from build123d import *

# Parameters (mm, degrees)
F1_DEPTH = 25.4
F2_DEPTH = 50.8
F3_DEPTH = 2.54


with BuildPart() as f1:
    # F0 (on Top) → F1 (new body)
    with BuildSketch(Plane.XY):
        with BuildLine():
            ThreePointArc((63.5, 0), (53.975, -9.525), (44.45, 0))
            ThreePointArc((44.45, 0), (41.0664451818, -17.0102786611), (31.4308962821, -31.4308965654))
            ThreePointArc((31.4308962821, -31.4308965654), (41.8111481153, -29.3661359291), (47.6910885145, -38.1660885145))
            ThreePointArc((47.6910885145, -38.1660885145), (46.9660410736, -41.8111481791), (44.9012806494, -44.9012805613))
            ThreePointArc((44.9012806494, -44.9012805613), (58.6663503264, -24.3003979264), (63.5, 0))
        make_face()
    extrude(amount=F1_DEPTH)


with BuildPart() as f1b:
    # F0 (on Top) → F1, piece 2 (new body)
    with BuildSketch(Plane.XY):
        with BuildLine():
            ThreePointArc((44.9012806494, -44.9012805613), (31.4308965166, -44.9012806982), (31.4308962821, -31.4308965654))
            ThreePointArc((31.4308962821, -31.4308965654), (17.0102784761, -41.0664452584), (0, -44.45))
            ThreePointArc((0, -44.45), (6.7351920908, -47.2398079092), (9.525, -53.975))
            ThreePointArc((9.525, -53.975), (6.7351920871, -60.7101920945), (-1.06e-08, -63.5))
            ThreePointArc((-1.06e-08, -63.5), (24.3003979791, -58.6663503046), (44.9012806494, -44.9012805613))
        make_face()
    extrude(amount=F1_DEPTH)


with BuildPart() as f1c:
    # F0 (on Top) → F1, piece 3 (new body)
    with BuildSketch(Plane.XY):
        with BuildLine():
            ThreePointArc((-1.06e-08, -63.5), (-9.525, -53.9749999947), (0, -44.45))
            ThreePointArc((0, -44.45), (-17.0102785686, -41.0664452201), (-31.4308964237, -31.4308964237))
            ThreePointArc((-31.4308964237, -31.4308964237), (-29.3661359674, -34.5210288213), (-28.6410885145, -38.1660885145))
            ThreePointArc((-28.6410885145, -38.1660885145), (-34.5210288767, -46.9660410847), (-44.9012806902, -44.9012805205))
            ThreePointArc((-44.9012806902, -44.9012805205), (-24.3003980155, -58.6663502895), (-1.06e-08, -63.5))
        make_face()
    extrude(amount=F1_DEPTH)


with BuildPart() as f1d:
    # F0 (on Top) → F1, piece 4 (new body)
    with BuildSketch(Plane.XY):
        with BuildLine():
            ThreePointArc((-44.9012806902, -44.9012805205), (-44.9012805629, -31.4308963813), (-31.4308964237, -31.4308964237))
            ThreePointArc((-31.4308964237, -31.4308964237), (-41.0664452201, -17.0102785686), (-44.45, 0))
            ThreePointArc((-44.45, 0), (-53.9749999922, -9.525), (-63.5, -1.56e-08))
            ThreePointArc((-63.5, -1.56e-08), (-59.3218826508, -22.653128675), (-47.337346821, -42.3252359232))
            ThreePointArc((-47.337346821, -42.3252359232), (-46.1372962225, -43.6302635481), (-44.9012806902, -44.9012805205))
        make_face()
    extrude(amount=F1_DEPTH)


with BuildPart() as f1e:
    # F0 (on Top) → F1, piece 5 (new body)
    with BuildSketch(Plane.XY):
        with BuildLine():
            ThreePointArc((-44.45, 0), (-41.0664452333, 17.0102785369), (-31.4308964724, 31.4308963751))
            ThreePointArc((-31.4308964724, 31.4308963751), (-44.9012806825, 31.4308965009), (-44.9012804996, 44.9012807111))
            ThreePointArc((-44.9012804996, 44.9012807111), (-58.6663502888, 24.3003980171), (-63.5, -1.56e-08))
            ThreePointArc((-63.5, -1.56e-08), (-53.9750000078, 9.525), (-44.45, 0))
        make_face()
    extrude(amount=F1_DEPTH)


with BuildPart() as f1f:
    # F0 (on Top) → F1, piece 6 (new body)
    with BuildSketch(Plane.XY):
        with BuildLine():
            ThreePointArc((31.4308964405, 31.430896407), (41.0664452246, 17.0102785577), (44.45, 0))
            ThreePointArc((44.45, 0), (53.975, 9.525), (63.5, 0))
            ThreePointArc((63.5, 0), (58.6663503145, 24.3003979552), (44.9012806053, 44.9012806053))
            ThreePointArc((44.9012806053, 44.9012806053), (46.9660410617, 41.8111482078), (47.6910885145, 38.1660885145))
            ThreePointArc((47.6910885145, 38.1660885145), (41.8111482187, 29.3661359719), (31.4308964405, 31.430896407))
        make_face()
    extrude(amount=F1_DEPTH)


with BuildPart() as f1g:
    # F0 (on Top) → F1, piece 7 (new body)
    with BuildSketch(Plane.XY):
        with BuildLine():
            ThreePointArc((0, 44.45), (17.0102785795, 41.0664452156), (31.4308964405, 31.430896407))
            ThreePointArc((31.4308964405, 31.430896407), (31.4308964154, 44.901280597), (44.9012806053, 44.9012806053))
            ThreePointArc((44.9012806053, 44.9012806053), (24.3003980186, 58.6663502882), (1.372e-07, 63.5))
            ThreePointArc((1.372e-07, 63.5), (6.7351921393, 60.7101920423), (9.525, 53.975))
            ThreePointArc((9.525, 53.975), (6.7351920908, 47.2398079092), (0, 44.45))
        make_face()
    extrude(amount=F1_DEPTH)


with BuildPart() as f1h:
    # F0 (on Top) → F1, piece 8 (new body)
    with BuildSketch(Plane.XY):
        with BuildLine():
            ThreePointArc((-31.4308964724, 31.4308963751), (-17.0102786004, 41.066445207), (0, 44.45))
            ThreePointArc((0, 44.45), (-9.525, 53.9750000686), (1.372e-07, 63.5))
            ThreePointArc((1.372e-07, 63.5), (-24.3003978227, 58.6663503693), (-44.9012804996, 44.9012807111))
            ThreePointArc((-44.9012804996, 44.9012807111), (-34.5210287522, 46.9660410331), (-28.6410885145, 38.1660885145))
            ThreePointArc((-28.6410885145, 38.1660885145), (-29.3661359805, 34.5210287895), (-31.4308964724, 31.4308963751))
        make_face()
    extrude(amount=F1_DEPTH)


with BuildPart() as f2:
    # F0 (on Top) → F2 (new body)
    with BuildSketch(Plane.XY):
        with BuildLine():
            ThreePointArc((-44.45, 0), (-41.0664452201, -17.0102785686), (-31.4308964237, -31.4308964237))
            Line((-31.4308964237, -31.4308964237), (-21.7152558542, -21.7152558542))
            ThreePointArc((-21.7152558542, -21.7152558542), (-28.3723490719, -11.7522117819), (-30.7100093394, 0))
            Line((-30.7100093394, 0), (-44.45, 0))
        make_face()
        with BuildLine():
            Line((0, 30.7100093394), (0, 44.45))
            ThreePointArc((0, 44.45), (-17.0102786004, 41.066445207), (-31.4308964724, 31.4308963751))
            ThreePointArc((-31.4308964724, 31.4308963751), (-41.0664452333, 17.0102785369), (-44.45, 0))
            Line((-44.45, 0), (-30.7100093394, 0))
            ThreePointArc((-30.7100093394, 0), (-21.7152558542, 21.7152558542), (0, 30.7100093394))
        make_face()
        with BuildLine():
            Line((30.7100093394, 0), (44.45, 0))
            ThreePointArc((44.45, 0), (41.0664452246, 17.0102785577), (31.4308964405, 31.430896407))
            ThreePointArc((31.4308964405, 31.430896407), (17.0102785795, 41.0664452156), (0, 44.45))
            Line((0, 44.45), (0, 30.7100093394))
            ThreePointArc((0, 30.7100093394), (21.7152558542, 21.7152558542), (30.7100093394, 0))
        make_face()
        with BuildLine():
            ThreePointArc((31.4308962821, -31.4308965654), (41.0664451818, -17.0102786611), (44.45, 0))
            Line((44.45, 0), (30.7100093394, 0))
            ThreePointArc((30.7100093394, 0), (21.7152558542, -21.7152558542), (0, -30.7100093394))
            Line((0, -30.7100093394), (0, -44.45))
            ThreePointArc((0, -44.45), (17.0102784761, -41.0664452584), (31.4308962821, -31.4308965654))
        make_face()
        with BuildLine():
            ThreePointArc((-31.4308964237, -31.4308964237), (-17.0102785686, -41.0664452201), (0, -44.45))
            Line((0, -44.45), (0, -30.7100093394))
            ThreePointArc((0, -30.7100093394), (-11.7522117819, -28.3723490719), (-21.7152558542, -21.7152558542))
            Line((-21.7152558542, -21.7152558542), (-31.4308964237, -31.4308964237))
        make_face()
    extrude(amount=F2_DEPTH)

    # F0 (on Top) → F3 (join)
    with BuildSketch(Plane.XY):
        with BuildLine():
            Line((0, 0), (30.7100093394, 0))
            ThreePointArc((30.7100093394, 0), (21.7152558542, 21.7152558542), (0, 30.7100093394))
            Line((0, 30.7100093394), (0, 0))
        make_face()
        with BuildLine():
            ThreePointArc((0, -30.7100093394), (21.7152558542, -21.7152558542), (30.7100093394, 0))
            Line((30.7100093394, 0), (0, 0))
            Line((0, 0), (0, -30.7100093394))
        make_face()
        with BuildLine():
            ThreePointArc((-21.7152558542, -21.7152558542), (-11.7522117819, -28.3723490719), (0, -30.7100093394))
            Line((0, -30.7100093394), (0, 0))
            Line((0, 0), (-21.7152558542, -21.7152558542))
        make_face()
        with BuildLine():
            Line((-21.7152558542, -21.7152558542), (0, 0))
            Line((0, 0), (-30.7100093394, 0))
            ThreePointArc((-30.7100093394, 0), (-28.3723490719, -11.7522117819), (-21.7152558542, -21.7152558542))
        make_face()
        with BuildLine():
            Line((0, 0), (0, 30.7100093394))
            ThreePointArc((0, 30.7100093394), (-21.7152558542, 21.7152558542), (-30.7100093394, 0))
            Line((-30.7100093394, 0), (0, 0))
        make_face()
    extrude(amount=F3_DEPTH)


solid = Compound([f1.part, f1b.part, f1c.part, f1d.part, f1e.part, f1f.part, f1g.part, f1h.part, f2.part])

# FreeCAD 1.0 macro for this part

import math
import FreeCAD as App
import Part
import Sketcher

V = App.Vector
Q = App.Units.Quantity

doc = App.newDocument("Part")
body = doc.addObject("PartDesign::Body", "Body")

sketch1 = body.newObject("Sketcher::SketchObject", "Sketch")
sketch1.AttachmentSupport = (doc.getObject("XY_Plane"), [""])
sketch1.MapMode = "FlatFace"
sketch1.addGeometry([
    Part.ArcOfCircle(Part.Circle(V(54, 0, 0), V(0, 0, 1), 10), math.radians(180), math.radians(360)),
    Part.ArcOfCircle(Part.Circle(V(0, 0, 0), V(0, 0, 1), 44), math.radians(-45), math.radians(0)),
    Part.ArcOfCircle(Part.Circle(V(38, -38, 0), V(0, 0, 1), 10), math.radians(0), math.radians(135)),
    Part.ArcOfCircle(Part.Circle(V(38, -38, 0), V(0, 0, 1), 10), math.radians(-45), math.radians(0)),
    Part.ArcOfCircle(Part.Circle(V(0, 0, 0), V(0, 0, 1), 64), math.radians(-45), math.radians(0)),
], False)
sketch1.addConstraint([
    Sketcher.Constraint("Tangent", 0, 1, 1, 2),
    Sketcher.Constraint("Tangent", 1, 1, 2, 2),
    Sketcher.Constraint("Tangent", 2, 1, 3, 2),
    Sketcher.Constraint("Tangent", 3, 1, 4, 1),
    Sketcher.Constraint("Tangent", 4, 2, 0, 2),
    Sketcher.Constraint("Coincident", 1, 3, -1, 1),
    Sketcher.Constraint("Coincident", 4, 3, -1, 1),
    Sketcher.Constraint("Equal", 0, 2),
    Sketcher.Constraint("PointOnObject", 0, 3, -1),
    Sketcher.Constraint("Horizontal", 3, 3, 2, 1),
    Sketcher.Constraint("Radius", 4, Q("2.5 in")),
    Sketcher.Constraint("Radius", 1, Q("1.75 in")),
    Sketcher.Constraint("DistanceX", -1, 1, 2, 3, 38.166089),
])
pad1 = body.newObject("PartDesign::Pad", "Pad")
pad1.Profile = sketch1
pad1.Length = Q("1 in")
body2 = doc.addObject("PartDesign::Body", "Body001")

sketch2 = body2.newObject("Sketcher::SketchObject", "Sketch001")
sketch2.AttachmentSupport = (doc.getObject("XY_Plane001"), [""])
sketch2.MapMode = "FlatFace"
sketch2.addGeometry([
    Part.ArcOfCircle(Part.Circle(V(38, -38, 0), V(0, 0, 1), 10), math.radians(135), math.radians(315)),
    Part.ArcOfCircle(Part.Circle(V(0, 0, 0), V(0, 0, 1), 44), math.radians(-90), math.radians(-45)),
    Part.ArcOfCircle(Part.Circle(V(0, -54, 0), V(0, 0, 1), 10), math.radians(0), math.radians(90)),
    Part.ArcOfCircle(Part.Circle(V(0, -54, 0), V(0, 0, 1), 10), math.radians(-90), math.radians(0)),
    Part.ArcOfCircle(Part.Circle(V(0, 0, 0), V(0, 0, 1), 64), math.radians(-90), math.radians(-45)),
], False)
sketch2.addConstraint([
    Sketcher.Constraint("Tangent", 0, 1, 1, 2),
    Sketcher.Constraint("Tangent", 1, 1, 2, 2),
    Sketcher.Constraint("Tangent", 2, 1, 3, 2),
    Sketcher.Constraint("Tangent", 3, 1, 4, 1),
    Sketcher.Constraint("Tangent", 4, 2, 0, 2),
    Sketcher.Constraint("Coincident", 1, 3, -1, 1),
    Sketcher.Constraint("Coincident", 4, 3, -1, 1),
    Sketcher.Constraint("Equal", 0, 2),
    Sketcher.Constraint("PointOnObject", 2, 3, -2),
    Sketcher.Constraint("Horizontal", 3, 3, 2, 1),
    Sketcher.Constraint("Radius", 4, Q("2.5 in")),
    Sketcher.Constraint("Radius", 1, Q("1.75 in")),
    Sketcher.Constraint("DistanceX", -1, 1, 0, 3, 38.166089),
])
pad2 = body2.newObject("PartDesign::Pad", "Pad001")
pad2.Profile = sketch2
pad2.Length = Q("1 in")
body3 = doc.addObject("PartDesign::Body", "Body002")

sketch3 = body3.newObject("Sketcher::SketchObject", "Sketch002")
sketch3.AttachmentSupport = (doc.getObject("XY_Plane002"), [""])
sketch3.MapMode = "FlatFace"
sketch3.addGeometry([
    Part.ArcOfCircle(Part.Circle(V(0, -54, 0), V(0, 0, 1), 10), math.radians(90), math.radians(270)),
    Part.ArcOfCircle(Part.Circle(V(0, 0, 0), V(0, 0, 1), 44), math.radians(-135), math.radians(-90)),
    Part.ArcOfCircle(Part.Circle(V(-38, -38, 0), V(0, 0, 1), 10), math.radians(0), math.radians(45)),
    Part.ArcOfCircle(Part.Circle(V(-38, -38, 0), V(0, 0, 1), 10), math.radians(-135), math.radians(0)),
    Part.ArcOfCircle(Part.Circle(V(0, 0, 0), V(0, 0, 1), 64), math.radians(-135), math.radians(-90)),
], False)
sketch3.addConstraint([
    Sketcher.Constraint("Tangent", 0, 1, 1, 2),
    Sketcher.Constraint("Tangent", 1, 1, 2, 2),
    Sketcher.Constraint("Tangent", 2, 1, 3, 2),
    Sketcher.Constraint("Tangent", 3, 1, 4, 1),
    Sketcher.Constraint("Tangent", 4, 2, 0, 2),
    Sketcher.Constraint("Coincident", 1, 3, -1, 1),
    Sketcher.Constraint("Coincident", 4, 3, -1, 1),
    Sketcher.Constraint("Equal", 0, 2),
    Sketcher.Constraint("PointOnObject", 0, 3, -2),
    Sketcher.Constraint("Horizontal", 3, 3, 2, 1),
    Sketcher.Constraint("Radius", 4, Q("2.5 in")),
    Sketcher.Constraint("Radius", 1, Q("1.75 in")),
    Sketcher.Constraint("DistanceX", 2, 3, -1, 1, 38.166089),
])
pad3 = body3.newObject("PartDesign::Pad", "Pad002")
pad3.Profile = sketch3
pad3.Length = Q("1 in")
body4 = doc.addObject("PartDesign::Body", "Body003")

sketch4 = body4.newObject("Sketcher::SketchObject", "Sketch003")
sketch4.AttachmentSupport = (doc.getObject("XY_Plane003"), [""])
sketch4.MapMode = "FlatFace"
sketch4.addGeometry([
    Part.ArcOfCircle(Part.Circle(V(-38.2, -38.2, 0), V(0, 0, 1), 9.5), math.radians(45), math.radians(225)),
    Part.ArcOfCircle(Part.Circle(V(0, 0, 0), V(0, 0, 1), 44.5), math.radians(180), math.radians(225)),
    Part.ArcOfCircle(Part.Circle(V(-54, 0, 0), V(0, 0, 1), 9.5), math.radians(-180), math.radians(0)),
    Part.ArcOfCircle(Part.Circle(V(0, 0, 0), V(0, 0, 1), 63.5), math.radians(-180), math.radians(-138)),
    Part.ArcOfCircle(Part.Circle(V(0, 0, 0), V(0, 0, 1), 63.5), math.radians(-138.2), math.radians(-135)),
], False)
sketch4.addConstraint([
    Sketcher.Constraint("Tangent", 0, 1, 1, 2),
    Sketcher.Constraint("Tangent", 1, 1, 2, 2),
    Sketcher.Constraint("Tangent", 2, 1, 3, 1),
    Sketcher.Constraint("Tangent", 3, 2, 4, 1),
    Sketcher.Constraint("Tangent", 4, 2, 0, 2),
    Sketcher.Constraint("Coincident", 1, 3, -1, 1),
    Sketcher.Constraint("Coincident", 3, 3, -1, 1),
    Sketcher.Constraint("Equal", 3, 4),
    Sketcher.Constraint("PointOnObject", 2, 3, -1),
    Sketcher.Constraint("Radius", 3, Q("2.5 in")),
    Sketcher.Constraint("Radius", 1, Q("1.75 in")),
    Sketcher.Constraint("DistanceX", 0, 3, -1, 1, 38.166089),
    Sketcher.Constraint("DistanceX", 3, 2, 0, 3, 9.171258),
])
pad4 = body4.newObject("PartDesign::Pad", "Pad003")
pad4.Profile = sketch4
pad4.Length = Q("1 in")
body5 = doc.addObject("PartDesign::Body", "Body004")

sketch5 = body5.newObject("Sketcher::SketchObject", "Sketch004")
sketch5.AttachmentSupport = (doc.getObject("XY_Plane004"), [""])
sketch5.MapMode = "FlatFace"
sketch5.addGeometry([
    Part.ArcOfCircle(Part.Circle(V(0, 0, 0), V(0, 0, 1), 44), math.radians(135), math.radians(180)),
    Part.ArcOfCircle(Part.Circle(V(-38, 38, 0), V(0, 0, 1), 10), math.radians(135), math.radians(315)),
    Part.ArcOfCircle(Part.Circle(V(0, 0, 0), V(0, 0, 1), 64), math.radians(135), math.radians(180)),
    Part.ArcOfCircle(Part.Circle(V(-54, 0, 0), V(0, 0, 1), 10), math.radians(0), math.radians(180)),
], False)
sketch5.addConstraint([
    Sketcher.Constraint("Tangent", 0, 1, 1, 2),
    Sketcher.Constraint("Tangent", 1, 1, 2, 1),
    Sketcher.Constraint("Tangent", 2, 2, 3, 2),
    Sketcher.Constraint("Tangent", 3, 1, 0, 2),
    Sketcher.Constraint("Coincident", 0, 3, -1, 1),
    Sketcher.Constraint("Coincident", 2, 3, -1, 1),
    Sketcher.Constraint("PointOnObject", 3, 3, -1),
    Sketcher.Constraint("Radius", 2, Q("2.5 in")),
    Sketcher.Constraint("Radius", 0, Q("1.75 in")),
    Sketcher.Constraint("DistanceX", 1, 3, -1, 1, 38.166089),
])
pad5 = body5.newObject("PartDesign::Pad", "Pad004")
pad5.Profile = sketch5
pad5.Length = Q("1 in")
body6 = doc.addObject("PartDesign::Body", "Body005")

sketch6 = body6.newObject("Sketcher::SketchObject", "Sketch005")
sketch6.AttachmentSupport = (doc.getObject("XY_Plane005"), [""])
sketch6.MapMode = "FlatFace"
sketch6.addGeometry([
    Part.ArcOfCircle(Part.Circle(V(0, 0, 0), V(0, 0, 1), 44), math.radians(0), math.radians(45)),
    Part.ArcOfCircle(Part.Circle(V(54, 0, 0), V(0, 0, 1), 10), math.radians(0), math.radians(180)),
    Part.ArcOfCircle(Part.Circle(V(0, 0, 0), V(0, 0, 1), 63), math.radians(0), math.radians(45)),
    Part.ArcOfCircle(Part.Circle(V(38, 38, 0), V(0, 0, 1), 10), math.radians(0), math.radians(45)),
    Part.ArcOfCircle(Part.Circle(V(38, 38, 0), V(0, 0, 1), 10), math.radians(-135), math.radians(0)),
], False)
sketch6.addConstraint([
    Sketcher.Constraint("Tangent", 0, 1, 1, 2),
    Sketcher.Constraint("Tangent", 1, 1, 2, 1),
    Sketcher.Constraint("Tangent", 2, 2, 3, 2),
    Sketcher.Constraint("Tangent", 3, 1, 4, 2),
    Sketcher.Constraint("Tangent", 4, 1, 0, 2),
    Sketcher.Constraint("Coincident", 0, 3, -1, 1),
    Sketcher.Constraint("Coincident", 2, 3, -1, 1),
    Sketcher.Constraint("Equal", 1, 3),
    Sketcher.Constraint("PointOnObject", 1, 3, -1),
    Sketcher.Constraint("Horizontal", 4, 3, 3, 1),
    Sketcher.Constraint("Radius", 2, Q("2.5 in")),
    Sketcher.Constraint("Radius", 0, Q("1.75 in")),
    Sketcher.Constraint("DistanceX", -1, 1, 3, 3, 38.166089),
])
pad6 = body6.newObject("PartDesign::Pad", "Pad005")
pad6.Profile = sketch6
pad6.Length = Q("1 in")
body7 = doc.addObject("PartDesign::Body", "Body006")

sketch7 = body7.newObject("Sketcher::SketchObject", "Sketch006")
sketch7.AttachmentSupport = (doc.getObject("XY_Plane006"), [""])
sketch7.MapMode = "FlatFace"
sketch7.addGeometry([
    Part.ArcOfCircle(Part.Circle(V(0, 0, 0), V(0, 0, 1), 44), math.radians(45), math.radians(90)),
    Part.ArcOfCircle(Part.Circle(V(38, 38, 0), V(0, 0, 1), 10), math.radians(45), math.radians(225)),
    Part.ArcOfCircle(Part.Circle(V(0, 0, 0), V(0, 0, 1), 64), math.radians(45), math.radians(90)),
    Part.ArcOfCircle(Part.Circle(V(0, 54, 0), V(0, 0, 1), 10), math.radians(0), math.radians(90)),
    Part.ArcOfCircle(Part.Circle(V(0, 54, 0), V(0, 0, 1), 10), math.radians(-90), math.radians(0)),
], False)
sketch7.addConstraint([
    Sketcher.Constraint("Tangent", 0, 1, 1, 2),
    Sketcher.Constraint("Tangent", 1, 1, 2, 1),
    Sketcher.Constraint("Tangent", 2, 2, 3, 2),
    Sketcher.Constraint("Tangent", 3, 1, 4, 2),
    Sketcher.Constraint("Tangent", 4, 1, 0, 2),
    Sketcher.Constraint("Coincident", 0, 3, -1, 1),
    Sketcher.Constraint("Coincident", 2, 3, -1, 1),
    Sketcher.Constraint("Equal", 1, 3),
    Sketcher.Constraint("PointOnObject", 3, 3, -2),
    Sketcher.Constraint("Horizontal", 4, 3, 3, 1),
    Sketcher.Constraint("Radius", 2, Q("2.5 in")),
    Sketcher.Constraint("Radius", 0, Q("1.75 in")),
    Sketcher.Constraint("DistanceX", -1, 1, 1, 3, 38.166089),
])
pad7 = body7.newObject("PartDesign::Pad", "Pad006")
pad7.Profile = sketch7
pad7.Length = Q("1 in")
body8 = doc.addObject("PartDesign::Body", "Body007")

sketch8 = body8.newObject("Sketcher::SketchObject", "Sketch007")
sketch8.AttachmentSupport = (doc.getObject("XY_Plane007"), [""])
sketch8.MapMode = "FlatFace"
sketch8.addGeometry([
    Part.ArcOfCircle(Part.Circle(V(0, 0, 0), V(0, 0, 1), 44), math.radians(90), math.radians(135)),
    Part.ArcOfCircle(Part.Circle(V(0, 54, 0), V(0, 0, 1), 10), math.radians(90), math.radians(270)),
    Part.ArcOfCircle(Part.Circle(V(0, 0, 0), V(0, 0, 1), 64), math.radians(90), math.radians(135)),
    Part.ArcOfCircle(Part.Circle(V(-38, 38, 0), V(0, 0, 1), 10), math.radians(0), math.radians(135)),
    Part.ArcOfCircle(Part.Circle(V(-38, 38, 0), V(0, 0, 1), 10), math.radians(-45), math.radians(0)),
], False)
sketch8.addConstraint([
    Sketcher.Constraint("Tangent", 0, 1, 1, 2),
    Sketcher.Constraint("Tangent", 1, 1, 2, 1),
    Sketcher.Constraint("Tangent", 2, 2, 3, 2),
    Sketcher.Constraint("Tangent", 3, 1, 4, 2),
    Sketcher.Constraint("Tangent", 4, 1, 0, 2),
    Sketcher.Constraint("Coincident", 0, 3, -1, 1),
    Sketcher.Constraint("Coincident", 2, 3, -1, 1),
    Sketcher.Constraint("Equal", 1, 3),
    Sketcher.Constraint("PointOnObject", 1, 3, -2),
    Sketcher.Constraint("Horizontal", 4, 3, 3, 1),
    Sketcher.Constraint("Radius", 2, Q("2.5 in")),
    Sketcher.Constraint("Radius", 0, Q("1.75 in")),
    Sketcher.Constraint("DistanceX", 3, 3, -1, 1, 38.166089),
])
pad8 = body8.newObject("PartDesign::Pad", "Pad007")
pad8.Profile = sketch8
pad8.Length = Q("1 in")
body9 = doc.addObject("PartDesign::Body", "Body008")

sketch9 = body9.newObject("Sketcher::SketchObject", "Sketch008")
sketch9.AttachmentSupport = (doc.getObject("XY_Plane008"), [""])
sketch9.MapMode = "FlatFace"
sketch9.addGeometry([
    Part.ArcOfCircle(Part.Circle(V(0, 0, 0), V(0, 0, 1), 44), math.radians(-90), math.radians(-45)),
    Part.ArcOfCircle(Part.Circle(V(0, 0, 0), V(0, 0, 1), 44), math.radians(-45), math.radians(0)),
    Part.ArcOfCircle(Part.Circle(V(0, 0, 0), V(0, 0, 1), 44), math.radians(0), math.radians(45)),
    Part.ArcOfCircle(Part.Circle(V(0, 0, 0), V(0, 0, 1), 44), math.radians(45), math.radians(135)),
    Part.ArcOfCircle(Part.Circle(V(0, 0, 0), V(0, 0, 1), 44), math.radians(135), math.radians(225)),
    Part.ArcOfCircle(Part.Circle(V(0, 0, 0), V(0, 0, 1), 44), math.radians(-135), math.radians(-90)),
    Part.ArcOfCircle(Part.Circle(V(0, 0, 0), V(0, 0, 1), 31), math.radians(180), math.radians(225)),
    Part.ArcOfCircle(Part.Circle(V(0, 0, 0), V(0, 0, 1), 31), math.radians(90), math.radians(180)),
    Part.ArcOfCircle(Part.Circle(V(0, 0, 0), V(0, 0, 1), 31), math.radians(0), math.radians(90)),
    Part.ArcOfCircle(Part.Circle(V(0, 0, 0), V(0, 0, 1), 31), math.radians(-90), math.radians(0)),
    Part.ArcOfCircle(Part.Circle(V(0, 0, 0), V(0, 0, 1), 31), math.radians(-135), math.radians(-90)),
], False)
sketch9.addConstraint([
    Sketcher.Constraint("Tangent", 0, 2, 1, 1),
    Sketcher.Constraint("Tangent", 1, 2, 2, 1),
    Sketcher.Constraint("Tangent", 2, 2, 3, 1),
    Sketcher.Constraint("Tangent", 3, 2, 4, 1),
    Sketcher.Constraint("Tangent", 4, 2, 5, 1),
    Sketcher.Constraint("Tangent", 5, 2, 0, 1),
    Sketcher.Constraint("Tangent", 6, 1, 7, 2),
    Sketcher.Constraint("Tangent", 7, 1, 8, 2),
    Sketcher.Constraint("Tangent", 8, 1, 9, 2),
    Sketcher.Constraint("Tangent", 9, 1, 10, 2),
    Sketcher.Constraint("Tangent", 10, 1, 6, 2),
    Sketcher.Constraint("Coincident", 0, 3, -1, 1),
    Sketcher.Constraint("Coincident", 2, 3, -1, 1),
    Sketcher.Constraint("Coincident", 6, 3, -1, 1),
    Sketcher.Constraint("Coincident", 8, 3, -1, 1),
    Sketcher.Constraint("Equal", 2, 3),
    Sketcher.Constraint("PointOnObject", 1, 2, -1),
    Sketcher.Constraint("PointOnObject", 5, 2, -2),
    Sketcher.Constraint("PointOnObject", 6, 1, -1),
    Sketcher.Constraint("PointOnObject", 7, 1, -2),
    Sketcher.Constraint("PointOnObject", 8, 1, -1),
    Sketcher.Constraint("PointOnObject", 9, 1, -2),
    Sketcher.Constraint("Horizontal", 2, 2, 3, 2),
    Sketcher.Constraint("Horizontal", 0, 2, 4, 2),
    Sketcher.Constraint("Vertical", 0, 2, 2, 2),
    Sketcher.Constraint("Radius", 0, Q("1.75 in")),
    Sketcher.Constraint("Radius", 6, 30.710009),
    Sketcher.Constraint("DistanceX", 4, 2, 10, 1, 9.715641),
    Sketcher.Constraint("DistanceX", -1, 1, 0, 2, 31.430896),
])
pad9 = body9.newObject("PartDesign::Pad", "Pad008")
pad9.Profile = sketch9
pad9.Length = Q("2 in")

sketch10 = body9.newObject("Sketcher::SketchObject", "Sketch009")
sketch10.AttachmentSupport = (doc.getObject("XY_Plane008"), [""])
sketch10.MapMode = "FlatFace"
sketch10.addGeometry([
    Part.ArcOfCircle(Part.Circle(V(0, 0, 0), V(0, 0, 1), 31), math.radians(0), math.radians(90)),
    Part.ArcOfCircle(Part.Circle(V(0, 0, 0), V(0, 0, 1), 31), math.radians(90), math.radians(180)),
    Part.ArcOfCircle(Part.Circle(V(0, 0, 0), V(0, 0, 1), 31), math.radians(180), math.radians(225)),
    Part.ArcOfCircle(Part.Circle(V(0, 0, 0), V(0, 0, 1), 31), math.radians(-135), math.radians(-90)),
    Part.ArcOfCircle(Part.Circle(V(0, 0, 0), V(0, 0, 1), 31), math.radians(-90), math.radians(0)),
], False)
sketch10.addConstraint([
    Sketcher.Constraint("Tangent", 0, 2, 1, 1),
    Sketcher.Constraint("Tangent", 1, 2, 2, 1),
    Sketcher.Constraint("Tangent", 2, 2, 3, 1),
    Sketcher.Constraint("Tangent", 3, 2, 4, 1),
    Sketcher.Constraint("Tangent", 4, 2, 0, 1),
    Sketcher.Constraint("Coincident", 0, 3, -1, 1),
    Sketcher.Constraint("Coincident", 2, 3, -1, 1),
    Sketcher.Constraint("PointOnObject", 0, 2, -2),
    Sketcher.Constraint("PointOnObject", 1, 2, -1),
    Sketcher.Constraint("PointOnObject", 3, 2, -2),
    Sketcher.Constraint("PointOnObject", 4, 2, -1),
    Sketcher.Constraint("Radius", 0, 30.710009),
    Sketcher.Constraint("DistanceX", 2, 2, -1, 1, 21.715256),
])
pad10 = body9.newObject("PartDesign::Pad", "Pad009")
pad10.Profile = sketch10
pad10.Length = Q("0.1 in")

doc.recompute()
